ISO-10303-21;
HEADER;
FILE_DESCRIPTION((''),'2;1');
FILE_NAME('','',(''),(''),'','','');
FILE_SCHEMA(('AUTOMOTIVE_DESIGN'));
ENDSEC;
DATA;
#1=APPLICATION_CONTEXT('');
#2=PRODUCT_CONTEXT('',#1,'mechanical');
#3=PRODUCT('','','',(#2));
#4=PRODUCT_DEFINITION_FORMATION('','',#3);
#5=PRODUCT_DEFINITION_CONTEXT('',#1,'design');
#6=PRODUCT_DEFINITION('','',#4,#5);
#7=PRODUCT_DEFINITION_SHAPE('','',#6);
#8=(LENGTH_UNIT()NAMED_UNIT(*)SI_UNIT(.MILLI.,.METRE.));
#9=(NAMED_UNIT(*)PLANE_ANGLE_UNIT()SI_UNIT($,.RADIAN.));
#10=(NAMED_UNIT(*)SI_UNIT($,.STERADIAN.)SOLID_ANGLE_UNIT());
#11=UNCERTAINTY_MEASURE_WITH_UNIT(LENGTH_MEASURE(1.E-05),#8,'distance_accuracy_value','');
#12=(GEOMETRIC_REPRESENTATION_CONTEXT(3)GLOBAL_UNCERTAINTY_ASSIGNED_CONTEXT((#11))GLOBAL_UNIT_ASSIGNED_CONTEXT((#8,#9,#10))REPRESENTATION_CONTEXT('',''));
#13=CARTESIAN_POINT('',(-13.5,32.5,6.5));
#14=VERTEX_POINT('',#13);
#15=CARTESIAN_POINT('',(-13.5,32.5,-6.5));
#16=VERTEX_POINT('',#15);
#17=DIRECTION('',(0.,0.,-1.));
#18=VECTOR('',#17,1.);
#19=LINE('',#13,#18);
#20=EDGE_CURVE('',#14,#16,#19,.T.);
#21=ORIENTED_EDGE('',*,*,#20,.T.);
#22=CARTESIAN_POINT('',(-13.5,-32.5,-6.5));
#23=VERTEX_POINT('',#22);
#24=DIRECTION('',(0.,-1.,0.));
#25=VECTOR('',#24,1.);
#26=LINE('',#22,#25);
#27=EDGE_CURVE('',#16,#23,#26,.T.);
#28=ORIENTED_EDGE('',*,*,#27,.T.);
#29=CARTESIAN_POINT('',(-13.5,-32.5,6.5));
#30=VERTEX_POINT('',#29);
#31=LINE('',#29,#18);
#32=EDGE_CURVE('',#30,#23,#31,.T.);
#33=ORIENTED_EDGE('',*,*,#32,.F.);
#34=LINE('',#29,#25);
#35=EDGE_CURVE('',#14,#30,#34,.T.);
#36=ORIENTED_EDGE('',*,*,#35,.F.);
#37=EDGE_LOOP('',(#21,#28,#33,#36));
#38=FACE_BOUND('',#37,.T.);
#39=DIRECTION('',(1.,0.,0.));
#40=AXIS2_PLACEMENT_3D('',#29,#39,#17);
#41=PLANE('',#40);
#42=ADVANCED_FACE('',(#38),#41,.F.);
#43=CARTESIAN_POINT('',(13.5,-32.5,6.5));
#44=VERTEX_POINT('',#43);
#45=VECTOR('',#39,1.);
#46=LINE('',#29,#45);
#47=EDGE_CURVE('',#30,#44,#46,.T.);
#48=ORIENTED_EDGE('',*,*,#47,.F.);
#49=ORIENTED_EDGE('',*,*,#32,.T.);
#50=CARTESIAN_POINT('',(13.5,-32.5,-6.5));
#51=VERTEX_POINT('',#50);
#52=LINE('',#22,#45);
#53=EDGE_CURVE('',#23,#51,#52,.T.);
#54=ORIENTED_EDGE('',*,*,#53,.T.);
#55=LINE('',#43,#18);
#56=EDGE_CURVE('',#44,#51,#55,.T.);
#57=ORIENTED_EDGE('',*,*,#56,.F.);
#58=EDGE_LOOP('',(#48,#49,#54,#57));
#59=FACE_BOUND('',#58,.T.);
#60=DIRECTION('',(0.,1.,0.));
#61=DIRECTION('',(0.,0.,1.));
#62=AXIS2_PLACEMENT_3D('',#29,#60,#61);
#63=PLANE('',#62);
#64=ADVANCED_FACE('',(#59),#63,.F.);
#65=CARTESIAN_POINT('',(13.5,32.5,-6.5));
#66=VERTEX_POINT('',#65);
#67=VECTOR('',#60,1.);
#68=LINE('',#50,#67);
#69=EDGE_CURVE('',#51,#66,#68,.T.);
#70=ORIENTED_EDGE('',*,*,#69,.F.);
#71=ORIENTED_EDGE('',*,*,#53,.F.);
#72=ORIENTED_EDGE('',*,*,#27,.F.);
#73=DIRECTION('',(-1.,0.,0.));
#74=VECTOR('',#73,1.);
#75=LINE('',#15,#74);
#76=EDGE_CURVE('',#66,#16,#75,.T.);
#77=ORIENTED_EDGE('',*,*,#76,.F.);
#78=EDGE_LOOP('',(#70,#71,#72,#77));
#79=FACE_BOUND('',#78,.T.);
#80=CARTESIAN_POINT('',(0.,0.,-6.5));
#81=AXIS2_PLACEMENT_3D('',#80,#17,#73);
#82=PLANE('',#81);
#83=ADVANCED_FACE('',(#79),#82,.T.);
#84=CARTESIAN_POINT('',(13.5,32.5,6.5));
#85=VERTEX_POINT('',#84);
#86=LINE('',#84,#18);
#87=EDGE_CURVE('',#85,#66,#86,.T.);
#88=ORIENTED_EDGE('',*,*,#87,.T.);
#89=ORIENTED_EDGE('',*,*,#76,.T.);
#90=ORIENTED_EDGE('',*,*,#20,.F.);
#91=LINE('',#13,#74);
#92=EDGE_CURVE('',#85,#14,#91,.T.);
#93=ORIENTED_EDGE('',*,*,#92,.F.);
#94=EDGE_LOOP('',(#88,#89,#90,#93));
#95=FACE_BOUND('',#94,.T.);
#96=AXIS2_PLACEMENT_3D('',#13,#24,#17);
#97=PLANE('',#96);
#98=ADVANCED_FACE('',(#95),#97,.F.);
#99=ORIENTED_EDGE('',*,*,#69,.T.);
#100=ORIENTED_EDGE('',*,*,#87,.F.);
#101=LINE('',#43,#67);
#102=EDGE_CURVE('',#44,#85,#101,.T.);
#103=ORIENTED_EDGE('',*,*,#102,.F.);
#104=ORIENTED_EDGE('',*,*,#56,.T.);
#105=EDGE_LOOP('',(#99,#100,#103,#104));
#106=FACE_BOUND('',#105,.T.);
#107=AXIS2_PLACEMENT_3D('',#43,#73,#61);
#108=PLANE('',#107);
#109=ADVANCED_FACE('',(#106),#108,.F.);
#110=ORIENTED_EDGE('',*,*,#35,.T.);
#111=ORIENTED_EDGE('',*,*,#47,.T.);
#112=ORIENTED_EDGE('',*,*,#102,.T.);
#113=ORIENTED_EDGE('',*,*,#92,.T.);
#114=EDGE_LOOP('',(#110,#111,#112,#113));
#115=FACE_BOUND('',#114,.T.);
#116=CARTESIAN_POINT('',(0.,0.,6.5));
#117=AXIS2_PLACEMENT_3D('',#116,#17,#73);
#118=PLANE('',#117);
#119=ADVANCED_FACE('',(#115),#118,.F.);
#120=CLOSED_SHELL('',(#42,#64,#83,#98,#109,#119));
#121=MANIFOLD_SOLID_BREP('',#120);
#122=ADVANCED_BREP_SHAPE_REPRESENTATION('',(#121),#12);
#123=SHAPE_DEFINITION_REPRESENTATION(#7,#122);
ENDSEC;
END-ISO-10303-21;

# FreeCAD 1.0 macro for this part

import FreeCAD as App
import Part
import Sketcher

doc = App.newDocument("Part")
body = doc.addObject("PartDesign::Body", "Body")

# Sketch on XY plane
sketch1 = body.newObject("Sketcher::SketchObject", "Sketch")
sketch1.AttachmentSupport = (doc.getObject("XY_Plane"), [""])
sketch1.MapMode = "FlatFace"
sketch1.addGeometry(Part.LineSegment(App.Vector(-14, 32, 0), App.Vector(-14, -32, 0)), False)
sketch1.addGeometry(Part.LineSegment(App.Vector(-14, -32, 0), App.Vector(14, -32, 0)), False)
sketch1.addGeometry(Part.LineSegment(App.Vector(14, -32, 0), App.Vector(14, 32, 0)), False)
sketch1.addGeometry(Part.LineSegment(App.Vector(14, 32, 0), App.Vector(-14, 32, 0)), False)
sketch1.addConstraint(Sketcher.Constraint("Coincident", 0, 2, 1, 1))
sketch1.addConstraint(Sketcher.Constraint("Coincident", 1, 2, 2, 1))
sketch1.addConstraint(Sketcher.Constraint("Coincident", 2, 2, 3, 1))
sketch1.addConstraint(Sketcher.Constraint("Coincident", 3, 2, 0, 1))
sketch1.addConstraint(Sketcher.Constraint("Vertical", 0))
sketch1.addConstraint(Sketcher.Constraint("Horizontal", 1))
sketch1.addConstraint(Sketcher.Constraint("Vertical", 2))
sketch1.addConstraint(Sketcher.Constraint("Horizontal", 3))
sketch1.addConstraint(Sketcher.Constraint("Symmetric", 0, 2, 2, 2, -1, 1))
sketch1.addConstraint(Sketcher.Constraint("DistanceX", 1, 1, 1, 2, 27.0))
sketch1.addConstraint(Sketcher.Constraint("DistanceY", 0, 2, 0, 1, 65.0))
pad1 = body.newObject("PartDesign::Pad", "Pad")
pad1.Profile = sketch1
pad1.Length = 13
pad1.Midplane = True

doc.recompute()
